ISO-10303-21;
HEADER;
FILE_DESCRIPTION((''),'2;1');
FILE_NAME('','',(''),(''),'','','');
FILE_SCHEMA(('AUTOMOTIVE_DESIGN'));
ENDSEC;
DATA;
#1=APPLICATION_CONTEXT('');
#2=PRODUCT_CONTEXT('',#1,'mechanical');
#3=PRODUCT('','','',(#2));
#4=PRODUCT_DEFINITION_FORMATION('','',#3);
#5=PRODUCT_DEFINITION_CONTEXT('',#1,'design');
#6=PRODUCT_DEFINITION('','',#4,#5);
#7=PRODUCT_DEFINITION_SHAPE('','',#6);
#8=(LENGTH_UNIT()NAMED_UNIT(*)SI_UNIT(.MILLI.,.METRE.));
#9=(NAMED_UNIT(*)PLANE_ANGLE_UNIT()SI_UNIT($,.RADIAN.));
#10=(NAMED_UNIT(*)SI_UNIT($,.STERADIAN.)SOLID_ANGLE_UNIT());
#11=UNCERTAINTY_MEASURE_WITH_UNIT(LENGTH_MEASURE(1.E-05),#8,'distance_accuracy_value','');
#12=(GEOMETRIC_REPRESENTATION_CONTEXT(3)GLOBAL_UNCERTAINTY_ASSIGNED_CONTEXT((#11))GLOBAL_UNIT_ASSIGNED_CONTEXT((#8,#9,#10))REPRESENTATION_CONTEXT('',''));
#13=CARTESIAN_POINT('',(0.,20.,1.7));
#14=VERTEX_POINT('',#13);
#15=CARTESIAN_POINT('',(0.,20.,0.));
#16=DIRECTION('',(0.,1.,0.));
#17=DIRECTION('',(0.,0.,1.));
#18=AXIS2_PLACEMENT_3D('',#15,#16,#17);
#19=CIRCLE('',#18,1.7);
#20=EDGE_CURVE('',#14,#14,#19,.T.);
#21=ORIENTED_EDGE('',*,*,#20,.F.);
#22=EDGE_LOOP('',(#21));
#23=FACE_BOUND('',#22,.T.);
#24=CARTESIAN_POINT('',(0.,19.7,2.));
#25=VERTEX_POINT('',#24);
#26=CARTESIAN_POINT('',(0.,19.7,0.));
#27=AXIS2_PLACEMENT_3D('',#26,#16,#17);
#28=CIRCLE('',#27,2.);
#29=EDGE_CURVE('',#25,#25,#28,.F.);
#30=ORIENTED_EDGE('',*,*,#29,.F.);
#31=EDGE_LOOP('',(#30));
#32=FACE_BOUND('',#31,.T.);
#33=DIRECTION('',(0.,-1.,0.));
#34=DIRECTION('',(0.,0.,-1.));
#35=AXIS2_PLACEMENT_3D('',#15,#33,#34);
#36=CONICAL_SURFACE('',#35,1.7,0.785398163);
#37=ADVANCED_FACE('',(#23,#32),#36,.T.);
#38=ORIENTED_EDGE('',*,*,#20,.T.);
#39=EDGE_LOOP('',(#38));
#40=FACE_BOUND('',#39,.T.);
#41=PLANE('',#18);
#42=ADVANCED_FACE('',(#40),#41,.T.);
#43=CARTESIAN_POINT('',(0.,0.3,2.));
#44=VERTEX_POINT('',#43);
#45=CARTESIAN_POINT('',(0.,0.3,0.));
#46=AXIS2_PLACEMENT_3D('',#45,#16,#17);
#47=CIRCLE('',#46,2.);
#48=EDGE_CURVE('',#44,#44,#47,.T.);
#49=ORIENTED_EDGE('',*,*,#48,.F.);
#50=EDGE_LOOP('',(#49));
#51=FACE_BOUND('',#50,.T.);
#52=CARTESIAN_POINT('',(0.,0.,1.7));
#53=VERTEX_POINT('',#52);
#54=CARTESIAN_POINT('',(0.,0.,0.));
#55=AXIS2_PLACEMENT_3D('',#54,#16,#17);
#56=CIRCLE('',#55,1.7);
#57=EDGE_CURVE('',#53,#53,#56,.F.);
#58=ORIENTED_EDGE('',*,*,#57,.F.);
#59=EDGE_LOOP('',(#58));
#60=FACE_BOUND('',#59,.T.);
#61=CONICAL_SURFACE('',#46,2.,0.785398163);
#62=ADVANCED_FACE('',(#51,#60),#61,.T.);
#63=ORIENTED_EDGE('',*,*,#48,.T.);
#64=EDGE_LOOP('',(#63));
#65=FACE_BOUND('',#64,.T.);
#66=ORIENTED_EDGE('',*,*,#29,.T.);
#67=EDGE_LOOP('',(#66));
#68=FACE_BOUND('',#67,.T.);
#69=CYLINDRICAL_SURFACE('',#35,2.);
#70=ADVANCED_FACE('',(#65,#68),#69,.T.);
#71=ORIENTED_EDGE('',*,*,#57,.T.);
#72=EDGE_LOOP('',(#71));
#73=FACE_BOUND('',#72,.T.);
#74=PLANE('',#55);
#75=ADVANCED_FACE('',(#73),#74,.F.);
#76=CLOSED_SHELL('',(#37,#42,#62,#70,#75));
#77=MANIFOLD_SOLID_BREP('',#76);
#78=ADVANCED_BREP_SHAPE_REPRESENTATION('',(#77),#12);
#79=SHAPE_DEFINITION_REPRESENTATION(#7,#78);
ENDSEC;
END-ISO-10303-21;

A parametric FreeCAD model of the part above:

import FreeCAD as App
import Part
import Sketcher

V = App.Vector
Q = App.Units.Quantity


def edges_at(feature, points):
    """Names of the edges that pass closest to the given points."""
    edges = feature.Shape.Edges
    near = lambda p: min(range(len(edges)), key=lambda i: edges[i].distToShape(Part.Vertex(*p))[0])
    return sorted({f"Edge{near(p) + 1}" for p in points})

doc = App.newDocument("Part")
body = doc.addObject("PartDesign::Body", "Body")

sketch1 = body.newObject("Sketcher::SketchObject", "Sketch")
sketch1.AttachmentSupport = (doc.getObject("XZ_Plane"), [""])
sketch1.MapMode = "FlatFace"
sketch1.addGeometry(Part.Circle(V(0, 0, 0), V(0, 0, 1), 2), False)
sketch1.addConstraint([
    Sketcher.Constraint("Coincident", 0, 3, -1, 1),
    Sketcher.Constraint("Diameter", 0, Q("4 mm")),
])
pad1 = body.newObject("PartDesign::Pad", "Pad")
pad1.Profile = sketch1
pad1.Length = 20
pad1.Reversed = True
doc.recompute()

chamfer = body.newObject("PartDesign::Chamfer", "Chamfer")
chamfer.Base = (pad1, edges_at(pad1, [(0, 0, -2), (0, 20, -2)]))
chamfer.Size = 0.3

doc.recompute()
